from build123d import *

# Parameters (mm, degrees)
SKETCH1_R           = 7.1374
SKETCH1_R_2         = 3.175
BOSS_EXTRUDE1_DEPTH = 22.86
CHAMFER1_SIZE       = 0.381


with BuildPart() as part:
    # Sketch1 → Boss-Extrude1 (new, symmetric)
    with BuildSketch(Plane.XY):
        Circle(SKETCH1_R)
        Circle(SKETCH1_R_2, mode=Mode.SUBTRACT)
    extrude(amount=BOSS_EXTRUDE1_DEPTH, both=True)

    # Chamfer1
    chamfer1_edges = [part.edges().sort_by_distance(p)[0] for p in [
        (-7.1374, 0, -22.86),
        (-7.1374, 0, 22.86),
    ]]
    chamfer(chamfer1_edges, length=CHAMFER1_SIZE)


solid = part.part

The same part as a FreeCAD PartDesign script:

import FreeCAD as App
import Part
import Sketcher

V = App.Vector
Q = App.Units.Quantity


def edges_at(feature, points):
    """Names of the edges that pass closest to the given points."""
    edges = feature.Shape.Edges
    near = lambda p: min(range(len(edges)), key=lambda i: edges[i].distToShape(Part.Vertex(*p))[0])
    return sorted({f"Edge{near(p) + 1}" for p in points})

doc = App.newDocument("Part")
params = doc.addObject("Spreadsheet::Sheet", "Params")
for row, (alias, value) in enumerate([
    ("sketch1_diameter", "0.25 in"),
    ("sketch1_diameter2", "0.562 in"),
    ("pad1_length", "1.8 in"),
    ("chamfer_size", "0.015 in"),
], start=1):
    params.set(f"A{row}", alias)
    params.set(f"B{row}", "=" + value)
    params.setAlias(f"B{row}", alias)

body = doc.addObject("PartDesign::Body", "Body")

# Sketch on XY plane
sketch1 = doc.addObject("Sketcher::SketchObject", "Sketch")
body.addObject(sketch1)
sketch1.AttachmentSupport = (doc.XY_Plane, [""])
sketch1.MapMode = "FlatFace"
sketch1.addGeometry([
    Part.Circle(V(0, 0, 0), V(0, 0, 1), 7.1),
    Part.Circle(V(0, 0, 0), V(0, 0, 1), 3.2),
], False)
sketch1.addConstraint([
    Sketcher.Constraint("Coincident", 0, 3, -1, 1),
    Sketcher.Constraint("Coincident", 1, 3, -1, 1),
    Sketcher.Constraint("Diameter", 1, Q("0.25 in")),
    Sketcher.Constraint("Diameter", 0, Q("0.562 in")),
])
sketch1.setExpression("Constraints[2]", "Params.sketch1_diameter")
sketch1.setExpression("Constraints[3]", "Params.sketch1_diameter2")
pad1 = doc.addObject("PartDesign::Pad", "Pad")
body.addObject(pad1)
pad1.Profile = sketch1
pad1.setExpression("Length", "Params.pad1_length")
pad1.Midplane = True
doc.recompute()

chamfer = doc.addObject("PartDesign::Chamfer", "Chamfer")
body.addObject(chamfer)
chamfer.Base = (pad1, edges_at(pad1, [(-7.137, 0, -22.86), (-7.137, 0, 22.86)]))
chamfer.setExpression("Size", "Params.chamfer_size")

doc.recompute()
